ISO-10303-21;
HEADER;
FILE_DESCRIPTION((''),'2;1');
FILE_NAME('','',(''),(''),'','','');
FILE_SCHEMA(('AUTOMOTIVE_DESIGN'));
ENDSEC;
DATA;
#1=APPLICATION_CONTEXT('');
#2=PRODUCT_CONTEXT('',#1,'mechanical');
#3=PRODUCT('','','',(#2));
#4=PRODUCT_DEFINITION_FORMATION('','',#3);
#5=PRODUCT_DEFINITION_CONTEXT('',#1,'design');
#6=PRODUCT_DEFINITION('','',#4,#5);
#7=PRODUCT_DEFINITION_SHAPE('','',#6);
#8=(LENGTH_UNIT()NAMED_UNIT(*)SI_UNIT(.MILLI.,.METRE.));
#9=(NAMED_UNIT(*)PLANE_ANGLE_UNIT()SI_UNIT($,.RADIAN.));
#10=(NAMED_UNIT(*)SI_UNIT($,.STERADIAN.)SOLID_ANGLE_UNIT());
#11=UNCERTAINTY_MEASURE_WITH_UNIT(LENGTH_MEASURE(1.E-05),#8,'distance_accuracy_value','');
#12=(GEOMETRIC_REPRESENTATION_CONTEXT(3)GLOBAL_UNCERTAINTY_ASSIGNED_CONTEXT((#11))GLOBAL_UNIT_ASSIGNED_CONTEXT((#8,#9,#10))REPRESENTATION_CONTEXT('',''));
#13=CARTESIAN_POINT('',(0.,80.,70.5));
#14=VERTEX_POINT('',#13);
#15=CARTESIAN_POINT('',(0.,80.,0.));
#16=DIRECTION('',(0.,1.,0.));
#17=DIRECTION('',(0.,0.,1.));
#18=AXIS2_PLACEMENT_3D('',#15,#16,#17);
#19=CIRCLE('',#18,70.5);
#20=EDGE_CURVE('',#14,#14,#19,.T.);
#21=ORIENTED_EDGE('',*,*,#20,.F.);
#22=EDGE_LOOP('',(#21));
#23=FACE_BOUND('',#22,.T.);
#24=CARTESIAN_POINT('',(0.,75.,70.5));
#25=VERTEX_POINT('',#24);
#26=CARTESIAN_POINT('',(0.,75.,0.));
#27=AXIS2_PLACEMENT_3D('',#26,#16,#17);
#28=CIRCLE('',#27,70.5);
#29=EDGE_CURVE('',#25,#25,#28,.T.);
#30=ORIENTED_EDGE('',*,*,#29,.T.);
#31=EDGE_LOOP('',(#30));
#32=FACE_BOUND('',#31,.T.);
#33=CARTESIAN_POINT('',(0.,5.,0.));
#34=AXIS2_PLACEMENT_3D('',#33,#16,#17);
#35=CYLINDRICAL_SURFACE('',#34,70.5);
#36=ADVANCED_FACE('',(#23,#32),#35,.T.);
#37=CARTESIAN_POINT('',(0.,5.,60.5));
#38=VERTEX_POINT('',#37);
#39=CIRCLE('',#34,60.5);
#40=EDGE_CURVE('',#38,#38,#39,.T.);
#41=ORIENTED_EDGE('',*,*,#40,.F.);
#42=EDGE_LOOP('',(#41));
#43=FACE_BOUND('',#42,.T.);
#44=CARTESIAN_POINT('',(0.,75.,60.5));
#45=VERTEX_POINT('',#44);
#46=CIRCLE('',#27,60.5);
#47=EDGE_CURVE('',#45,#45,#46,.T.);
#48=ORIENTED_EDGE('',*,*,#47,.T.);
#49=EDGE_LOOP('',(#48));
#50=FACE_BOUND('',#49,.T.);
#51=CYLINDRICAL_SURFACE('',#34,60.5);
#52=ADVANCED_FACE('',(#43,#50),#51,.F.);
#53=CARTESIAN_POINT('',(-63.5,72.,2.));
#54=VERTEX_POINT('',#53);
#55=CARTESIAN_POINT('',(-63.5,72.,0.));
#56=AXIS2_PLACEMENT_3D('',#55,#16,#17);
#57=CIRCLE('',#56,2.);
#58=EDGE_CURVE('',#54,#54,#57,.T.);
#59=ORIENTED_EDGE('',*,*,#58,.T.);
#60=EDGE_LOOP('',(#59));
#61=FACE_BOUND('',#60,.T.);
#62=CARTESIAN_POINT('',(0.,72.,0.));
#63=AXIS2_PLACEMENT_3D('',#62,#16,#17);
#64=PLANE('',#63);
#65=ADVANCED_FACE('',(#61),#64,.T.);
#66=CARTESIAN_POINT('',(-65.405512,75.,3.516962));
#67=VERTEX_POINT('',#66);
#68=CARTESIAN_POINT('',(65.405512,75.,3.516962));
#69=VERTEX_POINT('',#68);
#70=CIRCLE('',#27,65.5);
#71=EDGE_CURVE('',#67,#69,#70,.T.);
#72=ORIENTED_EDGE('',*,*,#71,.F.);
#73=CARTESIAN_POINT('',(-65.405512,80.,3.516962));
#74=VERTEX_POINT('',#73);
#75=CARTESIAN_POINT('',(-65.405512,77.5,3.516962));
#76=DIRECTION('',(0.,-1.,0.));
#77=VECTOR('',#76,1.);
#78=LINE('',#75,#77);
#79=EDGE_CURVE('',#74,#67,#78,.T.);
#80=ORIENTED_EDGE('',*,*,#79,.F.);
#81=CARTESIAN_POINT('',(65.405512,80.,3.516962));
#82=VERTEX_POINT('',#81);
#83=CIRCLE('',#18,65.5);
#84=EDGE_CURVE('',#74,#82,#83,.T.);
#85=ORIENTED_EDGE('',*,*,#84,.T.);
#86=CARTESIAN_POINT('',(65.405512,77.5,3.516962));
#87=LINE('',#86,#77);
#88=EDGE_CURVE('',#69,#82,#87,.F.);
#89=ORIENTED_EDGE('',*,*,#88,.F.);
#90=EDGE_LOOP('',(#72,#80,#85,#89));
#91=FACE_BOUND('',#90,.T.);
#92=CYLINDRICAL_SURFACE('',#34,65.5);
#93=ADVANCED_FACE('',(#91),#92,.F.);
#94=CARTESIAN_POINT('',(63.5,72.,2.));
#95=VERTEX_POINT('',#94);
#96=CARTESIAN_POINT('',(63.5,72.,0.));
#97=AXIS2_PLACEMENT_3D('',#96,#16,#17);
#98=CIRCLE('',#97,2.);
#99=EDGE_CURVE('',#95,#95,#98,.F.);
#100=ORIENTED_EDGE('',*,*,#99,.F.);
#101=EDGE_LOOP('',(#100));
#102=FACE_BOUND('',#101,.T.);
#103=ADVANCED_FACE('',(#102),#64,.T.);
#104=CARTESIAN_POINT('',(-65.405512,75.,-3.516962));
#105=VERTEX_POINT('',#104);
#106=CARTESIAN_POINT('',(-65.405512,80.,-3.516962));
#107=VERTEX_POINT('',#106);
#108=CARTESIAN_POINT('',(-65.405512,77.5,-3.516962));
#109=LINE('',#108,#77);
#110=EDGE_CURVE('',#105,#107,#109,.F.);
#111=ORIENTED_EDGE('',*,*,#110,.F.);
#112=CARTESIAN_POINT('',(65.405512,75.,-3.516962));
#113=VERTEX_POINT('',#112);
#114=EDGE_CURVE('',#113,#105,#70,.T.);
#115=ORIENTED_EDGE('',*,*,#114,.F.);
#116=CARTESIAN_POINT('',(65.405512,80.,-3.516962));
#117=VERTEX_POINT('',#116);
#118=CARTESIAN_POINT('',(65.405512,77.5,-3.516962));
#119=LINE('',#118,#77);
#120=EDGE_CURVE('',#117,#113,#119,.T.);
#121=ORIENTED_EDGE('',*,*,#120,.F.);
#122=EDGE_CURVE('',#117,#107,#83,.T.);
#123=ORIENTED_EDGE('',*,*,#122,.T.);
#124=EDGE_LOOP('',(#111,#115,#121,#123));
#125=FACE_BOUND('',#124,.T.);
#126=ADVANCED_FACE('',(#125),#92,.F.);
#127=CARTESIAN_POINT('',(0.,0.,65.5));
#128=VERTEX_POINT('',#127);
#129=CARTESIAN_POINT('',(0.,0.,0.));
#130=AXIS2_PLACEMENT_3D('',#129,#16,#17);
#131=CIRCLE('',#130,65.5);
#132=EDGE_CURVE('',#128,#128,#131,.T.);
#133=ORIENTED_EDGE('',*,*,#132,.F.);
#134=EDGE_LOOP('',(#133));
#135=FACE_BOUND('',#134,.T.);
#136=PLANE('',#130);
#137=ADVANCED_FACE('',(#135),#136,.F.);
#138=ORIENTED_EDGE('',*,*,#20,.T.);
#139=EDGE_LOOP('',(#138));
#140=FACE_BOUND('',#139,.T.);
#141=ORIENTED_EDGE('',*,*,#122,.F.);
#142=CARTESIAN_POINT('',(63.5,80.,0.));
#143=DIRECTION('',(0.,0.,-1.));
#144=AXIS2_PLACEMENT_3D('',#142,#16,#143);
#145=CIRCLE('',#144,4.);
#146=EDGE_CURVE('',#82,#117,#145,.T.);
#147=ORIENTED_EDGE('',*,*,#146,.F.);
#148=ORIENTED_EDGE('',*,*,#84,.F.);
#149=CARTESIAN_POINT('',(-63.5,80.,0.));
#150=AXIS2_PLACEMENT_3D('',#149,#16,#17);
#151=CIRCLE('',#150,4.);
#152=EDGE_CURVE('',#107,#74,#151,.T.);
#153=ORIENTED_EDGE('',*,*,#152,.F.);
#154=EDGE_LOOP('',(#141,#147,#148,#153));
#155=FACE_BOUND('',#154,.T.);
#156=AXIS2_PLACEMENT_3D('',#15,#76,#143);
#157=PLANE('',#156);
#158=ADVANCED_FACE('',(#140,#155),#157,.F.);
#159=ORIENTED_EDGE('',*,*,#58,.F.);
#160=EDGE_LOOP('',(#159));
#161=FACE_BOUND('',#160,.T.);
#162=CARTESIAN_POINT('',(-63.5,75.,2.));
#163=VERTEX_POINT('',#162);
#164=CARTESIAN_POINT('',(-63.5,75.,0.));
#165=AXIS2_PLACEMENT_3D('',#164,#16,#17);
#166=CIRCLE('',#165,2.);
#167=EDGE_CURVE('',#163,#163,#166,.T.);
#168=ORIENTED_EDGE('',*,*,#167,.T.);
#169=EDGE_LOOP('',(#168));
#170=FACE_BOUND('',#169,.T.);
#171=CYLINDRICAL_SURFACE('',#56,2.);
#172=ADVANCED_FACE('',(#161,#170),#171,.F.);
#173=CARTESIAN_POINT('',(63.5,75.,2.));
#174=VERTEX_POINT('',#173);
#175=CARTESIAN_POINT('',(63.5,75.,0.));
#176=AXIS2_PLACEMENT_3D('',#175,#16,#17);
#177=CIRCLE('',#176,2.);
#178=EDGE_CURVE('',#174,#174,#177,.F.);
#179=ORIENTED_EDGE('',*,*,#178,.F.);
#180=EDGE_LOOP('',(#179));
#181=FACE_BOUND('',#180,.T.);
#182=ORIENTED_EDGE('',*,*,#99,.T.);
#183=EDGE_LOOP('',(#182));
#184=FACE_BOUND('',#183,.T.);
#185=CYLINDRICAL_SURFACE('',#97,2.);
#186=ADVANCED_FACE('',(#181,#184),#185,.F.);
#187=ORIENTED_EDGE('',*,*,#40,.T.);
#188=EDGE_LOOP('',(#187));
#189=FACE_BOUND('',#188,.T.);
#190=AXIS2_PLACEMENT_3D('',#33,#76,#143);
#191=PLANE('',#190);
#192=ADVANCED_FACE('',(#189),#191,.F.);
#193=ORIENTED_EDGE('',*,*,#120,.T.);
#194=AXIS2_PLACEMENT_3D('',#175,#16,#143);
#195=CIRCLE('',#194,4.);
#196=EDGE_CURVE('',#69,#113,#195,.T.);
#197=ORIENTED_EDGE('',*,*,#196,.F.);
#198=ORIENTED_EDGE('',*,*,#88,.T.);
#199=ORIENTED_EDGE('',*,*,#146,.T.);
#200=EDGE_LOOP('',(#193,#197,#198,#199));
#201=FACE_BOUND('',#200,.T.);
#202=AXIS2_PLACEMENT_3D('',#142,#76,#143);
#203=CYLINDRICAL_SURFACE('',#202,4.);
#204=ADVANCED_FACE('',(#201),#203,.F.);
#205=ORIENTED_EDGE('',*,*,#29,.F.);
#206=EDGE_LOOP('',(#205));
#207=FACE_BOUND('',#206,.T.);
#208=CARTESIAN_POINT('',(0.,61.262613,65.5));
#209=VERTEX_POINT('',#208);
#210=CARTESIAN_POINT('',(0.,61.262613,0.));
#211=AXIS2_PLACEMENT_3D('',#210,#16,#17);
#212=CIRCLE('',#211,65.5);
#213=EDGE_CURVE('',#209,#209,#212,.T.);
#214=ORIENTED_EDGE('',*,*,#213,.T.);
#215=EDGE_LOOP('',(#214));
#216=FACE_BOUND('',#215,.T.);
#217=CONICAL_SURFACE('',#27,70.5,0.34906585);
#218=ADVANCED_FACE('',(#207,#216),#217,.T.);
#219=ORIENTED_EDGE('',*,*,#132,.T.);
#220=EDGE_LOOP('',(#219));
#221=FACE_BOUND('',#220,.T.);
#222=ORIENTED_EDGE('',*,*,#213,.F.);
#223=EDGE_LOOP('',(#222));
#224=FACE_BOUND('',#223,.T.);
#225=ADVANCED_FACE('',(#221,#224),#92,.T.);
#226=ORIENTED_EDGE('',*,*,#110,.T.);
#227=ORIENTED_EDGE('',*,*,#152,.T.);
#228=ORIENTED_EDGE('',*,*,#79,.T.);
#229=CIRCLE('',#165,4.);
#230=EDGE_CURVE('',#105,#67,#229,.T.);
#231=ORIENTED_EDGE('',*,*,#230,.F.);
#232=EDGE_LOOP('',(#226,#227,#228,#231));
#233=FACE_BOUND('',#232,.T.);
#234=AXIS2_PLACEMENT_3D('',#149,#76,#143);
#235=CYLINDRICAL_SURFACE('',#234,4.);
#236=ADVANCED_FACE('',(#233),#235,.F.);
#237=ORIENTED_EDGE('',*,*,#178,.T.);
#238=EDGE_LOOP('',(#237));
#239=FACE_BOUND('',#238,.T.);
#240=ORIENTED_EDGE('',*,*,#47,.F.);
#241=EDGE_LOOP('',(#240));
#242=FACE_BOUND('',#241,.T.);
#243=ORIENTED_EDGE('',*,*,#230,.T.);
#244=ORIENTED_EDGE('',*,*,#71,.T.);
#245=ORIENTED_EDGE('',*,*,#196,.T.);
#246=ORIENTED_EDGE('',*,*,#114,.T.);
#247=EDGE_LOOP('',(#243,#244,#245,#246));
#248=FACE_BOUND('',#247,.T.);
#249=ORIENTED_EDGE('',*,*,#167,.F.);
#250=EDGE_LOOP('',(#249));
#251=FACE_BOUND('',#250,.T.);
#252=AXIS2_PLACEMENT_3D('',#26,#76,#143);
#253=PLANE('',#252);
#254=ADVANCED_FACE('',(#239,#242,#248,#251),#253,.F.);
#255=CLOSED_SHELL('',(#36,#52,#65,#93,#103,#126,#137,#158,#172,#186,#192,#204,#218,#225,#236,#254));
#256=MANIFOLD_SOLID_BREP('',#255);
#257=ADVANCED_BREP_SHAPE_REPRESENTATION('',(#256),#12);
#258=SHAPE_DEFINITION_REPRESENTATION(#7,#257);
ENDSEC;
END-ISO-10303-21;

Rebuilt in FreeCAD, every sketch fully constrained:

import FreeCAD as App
import Part
import Sketcher
from FreeCAD import Vector
Q = App.Units.Quantity


def add_polygon(sketch, points):
    """Adds a closed chain of lines whose ends are joined by coincident constraints."""
    first, n = sketch.GeometryCount, len(points)
    for a, b in zip(points, points[1:] + points[:1]):
        sketch.addGeometry(Part.LineSegment(App.Vector(*a, 0), App.Vector(*b, 0)), False)
    for i in range(n):
        sketch.addConstraint(Sketcher.Constraint("Coincident", first + i, 2, first + (i + 1) % n, 1))

doc = App.newDocument("Part")
body = doc.addObject("PartDesign::Body", "Body")

# Sketch on XY plane
sketch1 = doc.addObject("Sketcher::SketchObject", "Sketch")
body.addObject(sketch1)
sketch1.AttachmentSupport = (doc.XY_Plane, [""])
sketch1.MapMode = "FlatFace"
add_polygon(sketch1, [(-70, 80), (-70, 75), (-66, 61), (-66, 0), (0, 0), (0, 5), (-60, 5), (-60, 75), (-66, 75), (-66, 80)])  # lines 0-9
sketch1.addConstraint([
    Sketcher.Constraint("Vertical", 0),
    Sketcher.Constraint("Vertical", 2),
    Sketcher.Constraint("Horizontal", 3),
    Sketcher.Constraint("Vertical", 4),
    Sketcher.Constraint("Horizontal", 5),
    Sketcher.Constraint("Vertical", 6),
    Sketcher.Constraint("Horizontal", 7),
    Sketcher.Constraint("Vertical", 8),
    Sketcher.Constraint("Horizontal", 9),
    Sketcher.Constraint("Coincident", 3, 2, -1, 1),
    Sketcher.Constraint("Horizontal", 0, 2, 6, 2),
    Sketcher.Constraint("Vertical", 2, 2, 7, 2),
    Sketcher.Constraint("Equal", 7, 9),
    Sketcher.Constraint("Equal", 9, 0),
    Sketcher.Constraint("Equal", 0, 4),
    Sketcher.Constraint("DistanceX", 7, 2, 7, 1, Q("5 mm")),
    Sketcher.Constraint("DistanceY", 6, 1, 6, 2, Q("70 mm")),
    Sketcher.Constraint("Angle", 1, Q("-70 deg")),
    Sketcher.Constraint("DistanceX", 3, 1, 3, 2, Q("65.5 mm")),
])
revolution = doc.addObject("PartDesign::Revolution", "Revolution")
body.addObject(revolution)
revolution.Profile = sketch1
revolution.ReferenceAxis = (sketch1, ["V_Axis"])
revolution.Angle = 360

# Sketch on XZ plane
sketch2 = doc.addObject("Sketcher::SketchObject", "Sketch001")
body.addObject(sketch2)
sketch2.AttachmentSupport = (doc.XZ_Plane, [""])
sketch2.MapMode = "FlatFace"
sketch2.AttachmentOffset = App.Placement(Vector(0, 0, -75), App.Rotation())
sketch2.addGeometry([
    Part.Circle(Vector(-63.5, 0, 0), Vector(0, 0, 1), 4),
    Part.Circle(Vector(-63.5, 0, 0), Vector(0, 0, 1), 2),
    Part.Circle(Vector(63.5, 0, 0), Vector(0, 0, 1), 4),
    Part.Circle(Vector(63.5, 0, 0), Vector(0, 0, 1), 2),
], False)
sketch2.addConstraint([
    Sketcher.Constraint("Coincident", 1, 3, 0, 3),
    Sketcher.Constraint("Coincident", 3, 3, 2, 3),
    Sketcher.Constraint("Equal", 0, 2),
    Sketcher.Constraint("Equal", 1, 3),
    Sketcher.Constraint("Symmetric", 0, 3, 2, 3, -1, 1),
    Sketcher.Constraint("PointOnObject", 0, 3, -1),
    Sketcher.Constraint("Diameter", 0, Q("8 mm")),
    Sketcher.Constraint("Diameter", 1, Q("4 mm")),
    Sketcher.Constraint("DistanceX", 0, 3, 2, 3, Q("127 mm")),
])
pocket1 = doc.addObject("PartDesign::Pocket", "Pocket")
body.addObject(pocket1)
pocket1.Profile = sketch2
pocket1.Length = 125.761773

# Sketch on XZ plane
sketch3 = doc.addObject("Sketcher::SketchObject", "Sketch002")
body.addObject(sketch3)
sketch3.AttachmentSupport = (doc.XZ_Plane, [""])
sketch3.MapMode = "FlatFace"
sketch3.AttachmentOffset = App.Placement(Vector(0, 0, -75), App.Rotation())
sketch3.addGeometry([
    Part.Circle(Vector(-63.5, 0, 0), Vector(0, 0, 1), 2),
    Part.Circle(Vector(63.5, 0, 0), Vector(0, 0, 1), 2),
], False)
sketch3.addConstraint([
    Sketcher.Constraint("Equal", 0, 1),
    Sketcher.Constraint("Symmetric", 0, 3, 1, 3, -1, 1),
    Sketcher.Constraint("PointOnObject", 0, 3, -1),
    Sketcher.Constraint("Diameter", 0, Q("4 mm")),
    Sketcher.Constraint("DistanceX", 0, 3, 1, 3, Q("127 mm")),
])
pocket2 = doc.addObject("PartDesign::Pocket", "Pocket001")
body.addObject(pocket2)
pocket2.Profile = sketch3
pocket2.Length = 3
pocket2.Reversed = True

doc.recompute()
